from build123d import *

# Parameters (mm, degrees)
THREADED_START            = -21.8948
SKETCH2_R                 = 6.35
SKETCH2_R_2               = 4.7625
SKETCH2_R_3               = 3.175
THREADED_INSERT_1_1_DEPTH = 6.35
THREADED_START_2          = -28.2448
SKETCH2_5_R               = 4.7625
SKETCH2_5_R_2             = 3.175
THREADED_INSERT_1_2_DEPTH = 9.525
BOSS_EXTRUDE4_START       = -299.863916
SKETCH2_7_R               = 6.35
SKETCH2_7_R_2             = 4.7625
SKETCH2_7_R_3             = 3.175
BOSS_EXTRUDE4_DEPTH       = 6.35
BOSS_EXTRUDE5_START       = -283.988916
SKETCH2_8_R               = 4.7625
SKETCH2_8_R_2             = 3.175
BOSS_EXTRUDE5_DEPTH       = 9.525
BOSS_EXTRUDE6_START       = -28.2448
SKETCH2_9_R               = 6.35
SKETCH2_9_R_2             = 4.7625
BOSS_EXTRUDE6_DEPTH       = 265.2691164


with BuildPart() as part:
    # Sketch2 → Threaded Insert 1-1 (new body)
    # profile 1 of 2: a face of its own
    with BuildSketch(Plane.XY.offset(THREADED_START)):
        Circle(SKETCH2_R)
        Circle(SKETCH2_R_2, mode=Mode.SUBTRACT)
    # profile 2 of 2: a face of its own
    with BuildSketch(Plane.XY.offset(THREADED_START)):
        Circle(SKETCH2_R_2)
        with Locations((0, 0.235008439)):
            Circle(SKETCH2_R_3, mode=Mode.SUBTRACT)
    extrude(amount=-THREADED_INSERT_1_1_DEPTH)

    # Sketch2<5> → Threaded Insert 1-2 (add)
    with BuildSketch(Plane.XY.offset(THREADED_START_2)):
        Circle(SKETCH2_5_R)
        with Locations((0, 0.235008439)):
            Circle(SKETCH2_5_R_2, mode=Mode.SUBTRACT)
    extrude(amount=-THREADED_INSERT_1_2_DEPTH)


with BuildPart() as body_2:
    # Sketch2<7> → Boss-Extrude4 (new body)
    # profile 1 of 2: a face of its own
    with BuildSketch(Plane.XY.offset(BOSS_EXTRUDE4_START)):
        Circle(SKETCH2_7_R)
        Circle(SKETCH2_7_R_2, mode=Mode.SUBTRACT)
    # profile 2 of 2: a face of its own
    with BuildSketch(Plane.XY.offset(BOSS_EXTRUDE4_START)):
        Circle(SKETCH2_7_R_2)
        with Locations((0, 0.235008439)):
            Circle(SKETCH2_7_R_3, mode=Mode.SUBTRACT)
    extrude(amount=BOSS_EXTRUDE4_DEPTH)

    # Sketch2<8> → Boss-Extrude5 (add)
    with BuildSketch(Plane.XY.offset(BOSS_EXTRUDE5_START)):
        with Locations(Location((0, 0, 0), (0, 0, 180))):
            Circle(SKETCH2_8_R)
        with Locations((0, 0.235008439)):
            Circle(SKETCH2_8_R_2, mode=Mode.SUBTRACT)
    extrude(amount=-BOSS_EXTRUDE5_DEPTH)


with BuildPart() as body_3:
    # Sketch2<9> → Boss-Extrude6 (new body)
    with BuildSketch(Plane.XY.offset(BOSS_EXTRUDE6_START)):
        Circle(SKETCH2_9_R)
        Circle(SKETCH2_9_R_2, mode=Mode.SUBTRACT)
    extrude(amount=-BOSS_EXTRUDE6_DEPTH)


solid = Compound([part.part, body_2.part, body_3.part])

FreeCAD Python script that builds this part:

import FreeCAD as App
import Part
import Sketcher
from FreeCAD import Vector
Q = App.Units.Quantity

doc = App.newDocument("Part")
body = doc.addObject("PartDesign::Body", "Body")

sketch1 = body.newObject("Sketcher::SketchObject", "Sketch")
sketch1.AttachmentSupport = (doc.getObject("XY_Plane"), [""])
sketch1.MapMode = "FlatFace"
sketch1.AttachmentOffset = App.Placement(Vector(0, 0, -0.862 * 25.4), App.Rotation())
sketch1.addGeometry(Part.Circle(Vector(0, 0, 0), Vector(0, 0, 1), 6.35), False)
sketch1.addGeometry(Part.Circle(Vector(0, 0.235008, 0), Vector(0, 0, 1), 3.175), False)
sketch1.addConstraint(Sketcher.Constraint("Coincident", 0, 3, -1, 1))
sketch1.addConstraint(Sketcher.Constraint("PointOnObject", 1, 3, -2))
sketch1.addConstraint(Sketcher.Constraint("Diameter", 0, Q("0.5 in")))
sketch1.addConstraint(Sketcher.Constraint("Diameter", 1, Q("0.25 in")))
sketch1.addConstraint(Sketcher.Constraint("DistanceY", -1, 1, 1, 3, 0.235008))
pad1 = body.newObject("PartDesign::Pad", "Pad")
pad1.Profile = sketch1
pad1.Length = Q("0.25 in")
pad1.Reversed = True

sketch2 = body.newObject("Sketcher::SketchObject", "Sketch001")
sketch2.AttachmentSupport = (doc.getObject("XY_Plane"), [""])
sketch2.MapMode = "FlatFace"
sketch2.AttachmentOffset = App.Placement(Vector(0, 0, -1.112 * 25.4), App.Rotation())
sketch2.addGeometry(Part.Circle(Vector(0, 0, 0), Vector(0, 0, 1), 4.7625), False)
sketch2.addGeometry(Part.Circle(Vector(0, 0.235008, 0), Vector(0, 0, 1), 3.175), False)
sketch2.addConstraint(Sketcher.Constraint("Coincident", 0, 3, -1, 1))
sketch2.addConstraint(Sketcher.Constraint("PointOnObject", 1, 3, -2))
sketch2.addConstraint(Sketcher.Constraint("Diameter", 1, Q("0.25 in")))
sketch2.addConstraint(Sketcher.Constraint("Diameter", 0, Q("0.375 in")))
sketch2.addConstraint(Sketcher.Constraint("DistanceY", -1, 1, 1, 3, 0.235008))
pad2 = body.newObject("PartDesign::Pad", "Pad001")
pad2.Profile = sketch2
pad2.Length = Q("0.375 in")
pad2.Reversed = True
body2 = doc.addObject("PartDesign::Body", "Body001")

sketch3 = body2.newObject("Sketcher::SketchObject", "Sketch002")
sketch3.AttachmentSupport = (doc.getObject("XY_Plane001"), [""])
sketch3.MapMode = "FlatFace"
sketch3.AttachmentOffset = App.Placement(Vector(0, 0, -299.863916), App.Rotation())
sketch3.addGeometry(Part.Circle(Vector(0, 0, 0), Vector(0, 0, 1), 6.35), False)
sketch3.addGeometry(Part.Circle(Vector(0, 0.235008, 0), Vector(0, 0, 1), 3.175), False)
sketch3.addConstraint(Sketcher.Constraint("Coincident", 0, 3, -1, 1))
sketch3.addConstraint(Sketcher.Constraint("PointOnObject", 1, 3, -2))
sketch3.addConstraint(Sketcher.Constraint("Diameter", 0, Q("0.5 in")))
sketch3.addConstraint(Sketcher.Constraint("Diameter", 1, Q("0.25 in")))
sketch3.addConstraint(Sketcher.Constraint("DistanceY", -1, 1, 1, 3, 0.235008))
pad3 = body2.newObject("PartDesign::Pad", "Pad002")
pad3.Profile = sketch3
pad3.Length = Q("0.25 in")

sketch4 = body2.newObject("Sketcher::SketchObject", "Sketch003")
sketch4.AttachmentSupport = (doc.getObject("XY_Plane001"), [""])
sketch4.MapMode = "FlatFace"
sketch4.AttachmentOffset = App.Placement(Vector(0, 0, -283.988916), App.Rotation())
sketch4.addGeometry(Part.Circle(Vector(0, 0, 0), Vector(0, 0, 1), 4.7625), False)
sketch4.addGeometry(Part.Circle(Vector(0, 0.235008, 0), Vector(0, 0, 1), 3.175), False)
sketch4.addConstraint(Sketcher.Constraint("Coincident", 0, 3, -1, 1))
sketch4.addConstraint(Sketcher.Constraint("PointOnObject", 1, 3, -2))
sketch4.addConstraint(Sketcher.Constraint("Diameter", 1, Q("0.25 in")))
sketch4.addConstraint(Sketcher.Constraint("Diameter", 0, Q("0.375 in")))
sketch4.addConstraint(Sketcher.Constraint("DistanceY", -1, 1, 1, 3, 0.235008))
pad4 = body2.newObject("PartDesign::Pad", "Pad003")
pad4.Profile = sketch4
pad4.Length = Q("0.375 in")
pad4.Reversed = True
body3 = doc.addObject("PartDesign::Body", "Body002")

sketch5 = body3.newObject("Sketcher::SketchObject", "Sketch004")
sketch5.AttachmentSupport = (doc.getObject("XY_Plane002"), [""])
sketch5.MapMode = "FlatFace"
sketch5.AttachmentOffset = App.Placement(Vector(0, 0, -1.112 * 25.4), App.Rotation())
sketch5.addGeometry(Part.Circle(Vector(0, 0, 0), Vector(0, 0, 1), 6.35), False)
sketch5.addGeometry(Part.Circle(Vector(0, 0, 0), Vector(0, 0, 1), 4.7625), False)
sketch5.addConstraint(Sketcher.Constraint("Coincident", 0, 3, -1, 1))
sketch5.addConstraint(Sketcher.Constraint("Coincident", 1, 3, -1, 1))
sketch5.addConstraint(Sketcher.Constraint("Diameter", 0, Q("0.5 in")))
sketch5.addConstraint(Sketcher.Constraint("Diameter", 1, Q("0.375 in")))
pad5 = body3.newObject("PartDesign::Pad", "Pad004")
pad5.Profile = sketch5
pad5.Length = 265.269116
pad5.Reversed = True

doc.recompute()
